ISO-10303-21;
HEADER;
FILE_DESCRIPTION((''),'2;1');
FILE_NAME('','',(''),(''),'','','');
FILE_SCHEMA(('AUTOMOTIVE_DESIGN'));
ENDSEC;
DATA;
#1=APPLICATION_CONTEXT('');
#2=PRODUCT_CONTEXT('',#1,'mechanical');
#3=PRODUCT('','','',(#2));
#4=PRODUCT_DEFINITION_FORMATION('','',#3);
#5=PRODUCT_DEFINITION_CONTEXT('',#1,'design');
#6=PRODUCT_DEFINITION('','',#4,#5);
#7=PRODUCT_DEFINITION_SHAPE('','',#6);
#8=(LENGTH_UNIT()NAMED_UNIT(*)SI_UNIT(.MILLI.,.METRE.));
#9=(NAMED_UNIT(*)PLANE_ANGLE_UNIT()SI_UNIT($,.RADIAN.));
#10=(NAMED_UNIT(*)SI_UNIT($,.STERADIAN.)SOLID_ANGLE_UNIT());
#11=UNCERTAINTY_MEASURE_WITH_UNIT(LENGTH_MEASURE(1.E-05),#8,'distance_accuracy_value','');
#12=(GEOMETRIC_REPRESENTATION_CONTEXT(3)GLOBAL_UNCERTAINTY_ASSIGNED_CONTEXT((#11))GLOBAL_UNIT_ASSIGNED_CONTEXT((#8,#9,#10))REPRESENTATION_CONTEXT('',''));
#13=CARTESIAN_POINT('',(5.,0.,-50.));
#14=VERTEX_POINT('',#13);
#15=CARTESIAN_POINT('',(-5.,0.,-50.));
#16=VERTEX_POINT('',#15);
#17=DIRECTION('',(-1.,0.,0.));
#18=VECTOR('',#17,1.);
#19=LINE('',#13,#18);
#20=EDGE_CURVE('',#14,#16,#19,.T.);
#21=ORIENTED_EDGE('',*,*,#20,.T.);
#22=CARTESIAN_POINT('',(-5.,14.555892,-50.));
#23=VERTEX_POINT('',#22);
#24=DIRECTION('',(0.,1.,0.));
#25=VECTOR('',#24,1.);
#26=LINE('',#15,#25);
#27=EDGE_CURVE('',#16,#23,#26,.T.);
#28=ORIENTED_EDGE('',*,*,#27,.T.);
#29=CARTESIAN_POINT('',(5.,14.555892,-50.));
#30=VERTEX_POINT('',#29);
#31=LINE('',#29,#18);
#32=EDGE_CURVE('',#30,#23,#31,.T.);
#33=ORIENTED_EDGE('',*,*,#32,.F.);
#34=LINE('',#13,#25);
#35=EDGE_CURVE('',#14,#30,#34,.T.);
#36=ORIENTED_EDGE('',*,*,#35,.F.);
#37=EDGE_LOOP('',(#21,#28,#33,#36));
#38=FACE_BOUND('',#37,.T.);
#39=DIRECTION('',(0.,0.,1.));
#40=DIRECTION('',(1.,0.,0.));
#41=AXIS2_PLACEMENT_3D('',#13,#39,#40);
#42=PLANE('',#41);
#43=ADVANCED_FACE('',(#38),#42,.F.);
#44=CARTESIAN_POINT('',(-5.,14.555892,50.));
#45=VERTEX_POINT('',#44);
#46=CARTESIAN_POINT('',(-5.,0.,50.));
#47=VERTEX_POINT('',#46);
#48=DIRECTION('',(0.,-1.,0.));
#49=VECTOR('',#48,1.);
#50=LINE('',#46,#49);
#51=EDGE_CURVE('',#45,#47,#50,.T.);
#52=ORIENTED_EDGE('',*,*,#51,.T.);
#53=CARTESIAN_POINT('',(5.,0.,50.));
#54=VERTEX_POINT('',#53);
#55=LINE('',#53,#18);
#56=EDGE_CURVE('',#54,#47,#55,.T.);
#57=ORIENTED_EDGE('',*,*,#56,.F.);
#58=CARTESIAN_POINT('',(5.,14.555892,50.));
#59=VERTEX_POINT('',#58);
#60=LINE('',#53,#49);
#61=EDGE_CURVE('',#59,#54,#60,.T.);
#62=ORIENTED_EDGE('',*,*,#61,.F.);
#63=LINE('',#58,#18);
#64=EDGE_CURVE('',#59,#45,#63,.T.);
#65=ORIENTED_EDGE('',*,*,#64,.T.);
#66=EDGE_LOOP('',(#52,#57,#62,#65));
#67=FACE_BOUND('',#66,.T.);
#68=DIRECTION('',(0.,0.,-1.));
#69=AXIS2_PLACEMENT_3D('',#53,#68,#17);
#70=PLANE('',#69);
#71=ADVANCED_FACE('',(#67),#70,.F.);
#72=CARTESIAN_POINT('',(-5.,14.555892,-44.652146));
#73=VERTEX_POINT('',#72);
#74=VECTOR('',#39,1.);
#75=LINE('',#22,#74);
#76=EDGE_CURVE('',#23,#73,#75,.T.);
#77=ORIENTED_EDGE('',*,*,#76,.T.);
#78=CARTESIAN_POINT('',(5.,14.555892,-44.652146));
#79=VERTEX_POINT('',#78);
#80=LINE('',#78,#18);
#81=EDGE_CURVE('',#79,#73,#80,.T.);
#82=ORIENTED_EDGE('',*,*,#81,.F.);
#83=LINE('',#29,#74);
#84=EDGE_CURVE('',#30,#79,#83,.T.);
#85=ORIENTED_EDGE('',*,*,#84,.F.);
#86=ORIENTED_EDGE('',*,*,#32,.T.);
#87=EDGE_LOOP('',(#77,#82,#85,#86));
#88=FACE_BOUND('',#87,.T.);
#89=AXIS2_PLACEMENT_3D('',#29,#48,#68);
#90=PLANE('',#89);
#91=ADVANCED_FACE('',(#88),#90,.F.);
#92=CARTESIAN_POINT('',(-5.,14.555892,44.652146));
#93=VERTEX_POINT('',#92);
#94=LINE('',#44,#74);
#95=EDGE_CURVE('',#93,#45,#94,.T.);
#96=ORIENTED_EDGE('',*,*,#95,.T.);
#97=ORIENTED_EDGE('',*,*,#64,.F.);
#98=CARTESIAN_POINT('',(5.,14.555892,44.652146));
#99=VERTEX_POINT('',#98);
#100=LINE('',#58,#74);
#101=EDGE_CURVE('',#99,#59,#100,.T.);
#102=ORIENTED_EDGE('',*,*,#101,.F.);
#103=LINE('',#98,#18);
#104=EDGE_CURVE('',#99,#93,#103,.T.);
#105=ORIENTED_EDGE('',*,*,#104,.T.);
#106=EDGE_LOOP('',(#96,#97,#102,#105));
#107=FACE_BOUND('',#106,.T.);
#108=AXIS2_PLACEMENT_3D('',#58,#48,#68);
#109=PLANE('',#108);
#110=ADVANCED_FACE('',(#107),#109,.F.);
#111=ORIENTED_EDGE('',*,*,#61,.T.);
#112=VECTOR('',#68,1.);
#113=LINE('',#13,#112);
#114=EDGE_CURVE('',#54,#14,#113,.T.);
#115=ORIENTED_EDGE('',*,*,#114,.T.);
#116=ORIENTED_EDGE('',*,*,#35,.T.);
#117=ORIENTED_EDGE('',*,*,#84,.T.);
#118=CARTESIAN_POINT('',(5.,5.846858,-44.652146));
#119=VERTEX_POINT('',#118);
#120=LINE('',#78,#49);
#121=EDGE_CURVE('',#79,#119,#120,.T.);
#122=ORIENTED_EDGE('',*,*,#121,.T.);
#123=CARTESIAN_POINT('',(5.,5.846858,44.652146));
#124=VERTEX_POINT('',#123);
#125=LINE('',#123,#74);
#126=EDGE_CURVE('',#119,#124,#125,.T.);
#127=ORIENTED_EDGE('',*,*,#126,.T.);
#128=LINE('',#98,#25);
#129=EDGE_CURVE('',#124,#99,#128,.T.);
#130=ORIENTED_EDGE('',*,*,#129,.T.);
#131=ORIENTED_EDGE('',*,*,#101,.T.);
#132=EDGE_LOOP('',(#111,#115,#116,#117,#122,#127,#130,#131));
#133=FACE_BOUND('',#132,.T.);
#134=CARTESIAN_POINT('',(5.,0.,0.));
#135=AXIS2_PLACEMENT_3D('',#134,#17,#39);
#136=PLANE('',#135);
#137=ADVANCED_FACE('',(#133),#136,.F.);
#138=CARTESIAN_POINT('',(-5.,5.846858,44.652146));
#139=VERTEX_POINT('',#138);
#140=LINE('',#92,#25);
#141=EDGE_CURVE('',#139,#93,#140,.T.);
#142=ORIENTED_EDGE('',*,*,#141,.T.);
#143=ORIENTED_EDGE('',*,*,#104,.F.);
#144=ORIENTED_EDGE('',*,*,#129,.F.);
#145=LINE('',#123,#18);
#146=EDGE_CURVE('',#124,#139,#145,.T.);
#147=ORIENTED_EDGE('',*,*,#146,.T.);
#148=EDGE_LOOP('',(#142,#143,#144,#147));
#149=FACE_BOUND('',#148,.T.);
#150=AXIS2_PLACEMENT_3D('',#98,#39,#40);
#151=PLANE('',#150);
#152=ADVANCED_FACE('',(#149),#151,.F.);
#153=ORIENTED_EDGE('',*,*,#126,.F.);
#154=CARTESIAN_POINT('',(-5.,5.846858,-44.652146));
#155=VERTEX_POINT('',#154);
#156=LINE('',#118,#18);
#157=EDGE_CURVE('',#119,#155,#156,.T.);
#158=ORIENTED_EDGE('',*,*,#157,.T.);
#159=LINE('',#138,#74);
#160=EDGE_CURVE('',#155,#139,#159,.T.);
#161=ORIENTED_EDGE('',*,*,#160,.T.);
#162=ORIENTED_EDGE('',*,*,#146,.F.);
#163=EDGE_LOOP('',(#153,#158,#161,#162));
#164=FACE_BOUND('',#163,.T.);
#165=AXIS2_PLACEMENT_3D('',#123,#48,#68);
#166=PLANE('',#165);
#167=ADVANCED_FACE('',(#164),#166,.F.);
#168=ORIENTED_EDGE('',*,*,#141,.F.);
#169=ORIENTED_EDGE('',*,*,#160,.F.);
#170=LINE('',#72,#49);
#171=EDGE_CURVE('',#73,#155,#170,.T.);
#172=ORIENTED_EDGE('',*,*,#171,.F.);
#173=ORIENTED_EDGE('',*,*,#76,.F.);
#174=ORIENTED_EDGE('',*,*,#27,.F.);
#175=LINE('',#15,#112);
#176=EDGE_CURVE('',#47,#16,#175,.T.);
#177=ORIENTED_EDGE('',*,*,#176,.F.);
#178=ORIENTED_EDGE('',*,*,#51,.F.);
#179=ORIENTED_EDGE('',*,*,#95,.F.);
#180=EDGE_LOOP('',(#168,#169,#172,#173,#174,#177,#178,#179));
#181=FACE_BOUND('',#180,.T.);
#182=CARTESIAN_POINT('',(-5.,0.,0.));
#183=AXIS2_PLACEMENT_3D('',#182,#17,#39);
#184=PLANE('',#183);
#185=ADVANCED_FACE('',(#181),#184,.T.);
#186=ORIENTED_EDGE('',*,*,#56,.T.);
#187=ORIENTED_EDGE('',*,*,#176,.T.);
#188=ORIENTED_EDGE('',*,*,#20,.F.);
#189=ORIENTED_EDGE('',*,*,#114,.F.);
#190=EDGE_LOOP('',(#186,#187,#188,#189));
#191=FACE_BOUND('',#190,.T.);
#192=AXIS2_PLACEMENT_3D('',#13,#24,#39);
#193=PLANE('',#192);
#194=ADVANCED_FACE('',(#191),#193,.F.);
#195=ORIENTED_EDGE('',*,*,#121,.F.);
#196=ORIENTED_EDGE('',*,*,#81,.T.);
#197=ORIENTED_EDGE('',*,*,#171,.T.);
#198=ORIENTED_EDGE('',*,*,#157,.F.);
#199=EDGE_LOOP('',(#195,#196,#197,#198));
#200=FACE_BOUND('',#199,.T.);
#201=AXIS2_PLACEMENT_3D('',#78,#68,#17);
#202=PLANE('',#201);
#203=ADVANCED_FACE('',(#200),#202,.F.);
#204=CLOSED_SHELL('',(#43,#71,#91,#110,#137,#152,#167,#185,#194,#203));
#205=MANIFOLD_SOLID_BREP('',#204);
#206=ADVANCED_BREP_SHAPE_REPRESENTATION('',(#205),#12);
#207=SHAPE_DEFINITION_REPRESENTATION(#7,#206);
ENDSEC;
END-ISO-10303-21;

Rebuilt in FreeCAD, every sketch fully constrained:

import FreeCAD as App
import Part
import Sketcher


def add_polygon(sketch, points):
    """Adds a closed chain of lines whose ends are joined by coincident constraints."""
    first, n = sketch.GeometryCount, len(points)
    for a, b in zip(points, points[1:] + points[:1]):
        sketch.addGeometry(Part.LineSegment(App.Vector(*a, 0), App.Vector(*b, 0)), False)
    for i in range(n):
        sketch.addConstraint(Sketcher.Constraint("Coincident", first + i, 2, first + (i + 1) % n, 1))

doc = App.newDocument("Part")
body = doc.addObject("PartDesign::Body", "Body")

# Sketch on YZ plane
sketch1 = doc.addObject("Sketcher::SketchObject", "Sketch")
body.addObject(sketch1)
sketch1.AttachmentSupport = (doc.YZ_Plane, [""])
sketch1.MapMode = "FlatFace"
add_polygon(sketch1, [(0, 50), (0, -50), (14.555892, -50), (14.555892, -44.652146), (5.846858, -44.652146), (5.846858, 44.652146), (14.555892, 44.652146), (14.555892, 50)])  # lines 0-7
sketch1.addConstraint(Sketcher.Constraint("Vertical", 0))
sketch1.addConstraint(Sketcher.Constraint("Horizontal", 1))
sketch1.addConstraint(Sketcher.Constraint("Vertical", 2))
sketch1.addConstraint(Sketcher.Constraint("Horizontal", 3))
sketch1.addConstraint(Sketcher.Constraint("Vertical", 4))
sketch1.addConstraint(Sketcher.Constraint("Horizontal", 5))
sketch1.addConstraint(Sketcher.Constraint("Vertical", 6))
sketch1.addConstraint(Sketcher.Constraint("Horizontal", 7))
sketch1.addConstraint(Sketcher.Constraint("Symmetric", 0, 2, 7, 2, -1, 1))
sketch1.addConstraint(Sketcher.Constraint("Symmetric", 2, 2, 5, 2, -1))
sketch1.addConstraint(Sketcher.Constraint("DistanceY", 0, 2, 0, 1, 100.0))
sketch1.addConstraint(Sketcher.Constraint("DistanceX", 1, 1, 1, 2, 14.555892))
sketch1.addConstraint(Sketcher.Constraint("DistanceX", 3, 2, 3, 1, 8.709035))
sketch1.addConstraint(Sketcher.Constraint("DistanceY", 2, 1, 2, 2, 5.347854))
pad1 = doc.addObject("PartDesign::Pad", "Pad")
body.addObject(pad1)
pad1.Profile = sketch1
pad1.Length = 10
pad1.Midplane = True

doc.recompute()
